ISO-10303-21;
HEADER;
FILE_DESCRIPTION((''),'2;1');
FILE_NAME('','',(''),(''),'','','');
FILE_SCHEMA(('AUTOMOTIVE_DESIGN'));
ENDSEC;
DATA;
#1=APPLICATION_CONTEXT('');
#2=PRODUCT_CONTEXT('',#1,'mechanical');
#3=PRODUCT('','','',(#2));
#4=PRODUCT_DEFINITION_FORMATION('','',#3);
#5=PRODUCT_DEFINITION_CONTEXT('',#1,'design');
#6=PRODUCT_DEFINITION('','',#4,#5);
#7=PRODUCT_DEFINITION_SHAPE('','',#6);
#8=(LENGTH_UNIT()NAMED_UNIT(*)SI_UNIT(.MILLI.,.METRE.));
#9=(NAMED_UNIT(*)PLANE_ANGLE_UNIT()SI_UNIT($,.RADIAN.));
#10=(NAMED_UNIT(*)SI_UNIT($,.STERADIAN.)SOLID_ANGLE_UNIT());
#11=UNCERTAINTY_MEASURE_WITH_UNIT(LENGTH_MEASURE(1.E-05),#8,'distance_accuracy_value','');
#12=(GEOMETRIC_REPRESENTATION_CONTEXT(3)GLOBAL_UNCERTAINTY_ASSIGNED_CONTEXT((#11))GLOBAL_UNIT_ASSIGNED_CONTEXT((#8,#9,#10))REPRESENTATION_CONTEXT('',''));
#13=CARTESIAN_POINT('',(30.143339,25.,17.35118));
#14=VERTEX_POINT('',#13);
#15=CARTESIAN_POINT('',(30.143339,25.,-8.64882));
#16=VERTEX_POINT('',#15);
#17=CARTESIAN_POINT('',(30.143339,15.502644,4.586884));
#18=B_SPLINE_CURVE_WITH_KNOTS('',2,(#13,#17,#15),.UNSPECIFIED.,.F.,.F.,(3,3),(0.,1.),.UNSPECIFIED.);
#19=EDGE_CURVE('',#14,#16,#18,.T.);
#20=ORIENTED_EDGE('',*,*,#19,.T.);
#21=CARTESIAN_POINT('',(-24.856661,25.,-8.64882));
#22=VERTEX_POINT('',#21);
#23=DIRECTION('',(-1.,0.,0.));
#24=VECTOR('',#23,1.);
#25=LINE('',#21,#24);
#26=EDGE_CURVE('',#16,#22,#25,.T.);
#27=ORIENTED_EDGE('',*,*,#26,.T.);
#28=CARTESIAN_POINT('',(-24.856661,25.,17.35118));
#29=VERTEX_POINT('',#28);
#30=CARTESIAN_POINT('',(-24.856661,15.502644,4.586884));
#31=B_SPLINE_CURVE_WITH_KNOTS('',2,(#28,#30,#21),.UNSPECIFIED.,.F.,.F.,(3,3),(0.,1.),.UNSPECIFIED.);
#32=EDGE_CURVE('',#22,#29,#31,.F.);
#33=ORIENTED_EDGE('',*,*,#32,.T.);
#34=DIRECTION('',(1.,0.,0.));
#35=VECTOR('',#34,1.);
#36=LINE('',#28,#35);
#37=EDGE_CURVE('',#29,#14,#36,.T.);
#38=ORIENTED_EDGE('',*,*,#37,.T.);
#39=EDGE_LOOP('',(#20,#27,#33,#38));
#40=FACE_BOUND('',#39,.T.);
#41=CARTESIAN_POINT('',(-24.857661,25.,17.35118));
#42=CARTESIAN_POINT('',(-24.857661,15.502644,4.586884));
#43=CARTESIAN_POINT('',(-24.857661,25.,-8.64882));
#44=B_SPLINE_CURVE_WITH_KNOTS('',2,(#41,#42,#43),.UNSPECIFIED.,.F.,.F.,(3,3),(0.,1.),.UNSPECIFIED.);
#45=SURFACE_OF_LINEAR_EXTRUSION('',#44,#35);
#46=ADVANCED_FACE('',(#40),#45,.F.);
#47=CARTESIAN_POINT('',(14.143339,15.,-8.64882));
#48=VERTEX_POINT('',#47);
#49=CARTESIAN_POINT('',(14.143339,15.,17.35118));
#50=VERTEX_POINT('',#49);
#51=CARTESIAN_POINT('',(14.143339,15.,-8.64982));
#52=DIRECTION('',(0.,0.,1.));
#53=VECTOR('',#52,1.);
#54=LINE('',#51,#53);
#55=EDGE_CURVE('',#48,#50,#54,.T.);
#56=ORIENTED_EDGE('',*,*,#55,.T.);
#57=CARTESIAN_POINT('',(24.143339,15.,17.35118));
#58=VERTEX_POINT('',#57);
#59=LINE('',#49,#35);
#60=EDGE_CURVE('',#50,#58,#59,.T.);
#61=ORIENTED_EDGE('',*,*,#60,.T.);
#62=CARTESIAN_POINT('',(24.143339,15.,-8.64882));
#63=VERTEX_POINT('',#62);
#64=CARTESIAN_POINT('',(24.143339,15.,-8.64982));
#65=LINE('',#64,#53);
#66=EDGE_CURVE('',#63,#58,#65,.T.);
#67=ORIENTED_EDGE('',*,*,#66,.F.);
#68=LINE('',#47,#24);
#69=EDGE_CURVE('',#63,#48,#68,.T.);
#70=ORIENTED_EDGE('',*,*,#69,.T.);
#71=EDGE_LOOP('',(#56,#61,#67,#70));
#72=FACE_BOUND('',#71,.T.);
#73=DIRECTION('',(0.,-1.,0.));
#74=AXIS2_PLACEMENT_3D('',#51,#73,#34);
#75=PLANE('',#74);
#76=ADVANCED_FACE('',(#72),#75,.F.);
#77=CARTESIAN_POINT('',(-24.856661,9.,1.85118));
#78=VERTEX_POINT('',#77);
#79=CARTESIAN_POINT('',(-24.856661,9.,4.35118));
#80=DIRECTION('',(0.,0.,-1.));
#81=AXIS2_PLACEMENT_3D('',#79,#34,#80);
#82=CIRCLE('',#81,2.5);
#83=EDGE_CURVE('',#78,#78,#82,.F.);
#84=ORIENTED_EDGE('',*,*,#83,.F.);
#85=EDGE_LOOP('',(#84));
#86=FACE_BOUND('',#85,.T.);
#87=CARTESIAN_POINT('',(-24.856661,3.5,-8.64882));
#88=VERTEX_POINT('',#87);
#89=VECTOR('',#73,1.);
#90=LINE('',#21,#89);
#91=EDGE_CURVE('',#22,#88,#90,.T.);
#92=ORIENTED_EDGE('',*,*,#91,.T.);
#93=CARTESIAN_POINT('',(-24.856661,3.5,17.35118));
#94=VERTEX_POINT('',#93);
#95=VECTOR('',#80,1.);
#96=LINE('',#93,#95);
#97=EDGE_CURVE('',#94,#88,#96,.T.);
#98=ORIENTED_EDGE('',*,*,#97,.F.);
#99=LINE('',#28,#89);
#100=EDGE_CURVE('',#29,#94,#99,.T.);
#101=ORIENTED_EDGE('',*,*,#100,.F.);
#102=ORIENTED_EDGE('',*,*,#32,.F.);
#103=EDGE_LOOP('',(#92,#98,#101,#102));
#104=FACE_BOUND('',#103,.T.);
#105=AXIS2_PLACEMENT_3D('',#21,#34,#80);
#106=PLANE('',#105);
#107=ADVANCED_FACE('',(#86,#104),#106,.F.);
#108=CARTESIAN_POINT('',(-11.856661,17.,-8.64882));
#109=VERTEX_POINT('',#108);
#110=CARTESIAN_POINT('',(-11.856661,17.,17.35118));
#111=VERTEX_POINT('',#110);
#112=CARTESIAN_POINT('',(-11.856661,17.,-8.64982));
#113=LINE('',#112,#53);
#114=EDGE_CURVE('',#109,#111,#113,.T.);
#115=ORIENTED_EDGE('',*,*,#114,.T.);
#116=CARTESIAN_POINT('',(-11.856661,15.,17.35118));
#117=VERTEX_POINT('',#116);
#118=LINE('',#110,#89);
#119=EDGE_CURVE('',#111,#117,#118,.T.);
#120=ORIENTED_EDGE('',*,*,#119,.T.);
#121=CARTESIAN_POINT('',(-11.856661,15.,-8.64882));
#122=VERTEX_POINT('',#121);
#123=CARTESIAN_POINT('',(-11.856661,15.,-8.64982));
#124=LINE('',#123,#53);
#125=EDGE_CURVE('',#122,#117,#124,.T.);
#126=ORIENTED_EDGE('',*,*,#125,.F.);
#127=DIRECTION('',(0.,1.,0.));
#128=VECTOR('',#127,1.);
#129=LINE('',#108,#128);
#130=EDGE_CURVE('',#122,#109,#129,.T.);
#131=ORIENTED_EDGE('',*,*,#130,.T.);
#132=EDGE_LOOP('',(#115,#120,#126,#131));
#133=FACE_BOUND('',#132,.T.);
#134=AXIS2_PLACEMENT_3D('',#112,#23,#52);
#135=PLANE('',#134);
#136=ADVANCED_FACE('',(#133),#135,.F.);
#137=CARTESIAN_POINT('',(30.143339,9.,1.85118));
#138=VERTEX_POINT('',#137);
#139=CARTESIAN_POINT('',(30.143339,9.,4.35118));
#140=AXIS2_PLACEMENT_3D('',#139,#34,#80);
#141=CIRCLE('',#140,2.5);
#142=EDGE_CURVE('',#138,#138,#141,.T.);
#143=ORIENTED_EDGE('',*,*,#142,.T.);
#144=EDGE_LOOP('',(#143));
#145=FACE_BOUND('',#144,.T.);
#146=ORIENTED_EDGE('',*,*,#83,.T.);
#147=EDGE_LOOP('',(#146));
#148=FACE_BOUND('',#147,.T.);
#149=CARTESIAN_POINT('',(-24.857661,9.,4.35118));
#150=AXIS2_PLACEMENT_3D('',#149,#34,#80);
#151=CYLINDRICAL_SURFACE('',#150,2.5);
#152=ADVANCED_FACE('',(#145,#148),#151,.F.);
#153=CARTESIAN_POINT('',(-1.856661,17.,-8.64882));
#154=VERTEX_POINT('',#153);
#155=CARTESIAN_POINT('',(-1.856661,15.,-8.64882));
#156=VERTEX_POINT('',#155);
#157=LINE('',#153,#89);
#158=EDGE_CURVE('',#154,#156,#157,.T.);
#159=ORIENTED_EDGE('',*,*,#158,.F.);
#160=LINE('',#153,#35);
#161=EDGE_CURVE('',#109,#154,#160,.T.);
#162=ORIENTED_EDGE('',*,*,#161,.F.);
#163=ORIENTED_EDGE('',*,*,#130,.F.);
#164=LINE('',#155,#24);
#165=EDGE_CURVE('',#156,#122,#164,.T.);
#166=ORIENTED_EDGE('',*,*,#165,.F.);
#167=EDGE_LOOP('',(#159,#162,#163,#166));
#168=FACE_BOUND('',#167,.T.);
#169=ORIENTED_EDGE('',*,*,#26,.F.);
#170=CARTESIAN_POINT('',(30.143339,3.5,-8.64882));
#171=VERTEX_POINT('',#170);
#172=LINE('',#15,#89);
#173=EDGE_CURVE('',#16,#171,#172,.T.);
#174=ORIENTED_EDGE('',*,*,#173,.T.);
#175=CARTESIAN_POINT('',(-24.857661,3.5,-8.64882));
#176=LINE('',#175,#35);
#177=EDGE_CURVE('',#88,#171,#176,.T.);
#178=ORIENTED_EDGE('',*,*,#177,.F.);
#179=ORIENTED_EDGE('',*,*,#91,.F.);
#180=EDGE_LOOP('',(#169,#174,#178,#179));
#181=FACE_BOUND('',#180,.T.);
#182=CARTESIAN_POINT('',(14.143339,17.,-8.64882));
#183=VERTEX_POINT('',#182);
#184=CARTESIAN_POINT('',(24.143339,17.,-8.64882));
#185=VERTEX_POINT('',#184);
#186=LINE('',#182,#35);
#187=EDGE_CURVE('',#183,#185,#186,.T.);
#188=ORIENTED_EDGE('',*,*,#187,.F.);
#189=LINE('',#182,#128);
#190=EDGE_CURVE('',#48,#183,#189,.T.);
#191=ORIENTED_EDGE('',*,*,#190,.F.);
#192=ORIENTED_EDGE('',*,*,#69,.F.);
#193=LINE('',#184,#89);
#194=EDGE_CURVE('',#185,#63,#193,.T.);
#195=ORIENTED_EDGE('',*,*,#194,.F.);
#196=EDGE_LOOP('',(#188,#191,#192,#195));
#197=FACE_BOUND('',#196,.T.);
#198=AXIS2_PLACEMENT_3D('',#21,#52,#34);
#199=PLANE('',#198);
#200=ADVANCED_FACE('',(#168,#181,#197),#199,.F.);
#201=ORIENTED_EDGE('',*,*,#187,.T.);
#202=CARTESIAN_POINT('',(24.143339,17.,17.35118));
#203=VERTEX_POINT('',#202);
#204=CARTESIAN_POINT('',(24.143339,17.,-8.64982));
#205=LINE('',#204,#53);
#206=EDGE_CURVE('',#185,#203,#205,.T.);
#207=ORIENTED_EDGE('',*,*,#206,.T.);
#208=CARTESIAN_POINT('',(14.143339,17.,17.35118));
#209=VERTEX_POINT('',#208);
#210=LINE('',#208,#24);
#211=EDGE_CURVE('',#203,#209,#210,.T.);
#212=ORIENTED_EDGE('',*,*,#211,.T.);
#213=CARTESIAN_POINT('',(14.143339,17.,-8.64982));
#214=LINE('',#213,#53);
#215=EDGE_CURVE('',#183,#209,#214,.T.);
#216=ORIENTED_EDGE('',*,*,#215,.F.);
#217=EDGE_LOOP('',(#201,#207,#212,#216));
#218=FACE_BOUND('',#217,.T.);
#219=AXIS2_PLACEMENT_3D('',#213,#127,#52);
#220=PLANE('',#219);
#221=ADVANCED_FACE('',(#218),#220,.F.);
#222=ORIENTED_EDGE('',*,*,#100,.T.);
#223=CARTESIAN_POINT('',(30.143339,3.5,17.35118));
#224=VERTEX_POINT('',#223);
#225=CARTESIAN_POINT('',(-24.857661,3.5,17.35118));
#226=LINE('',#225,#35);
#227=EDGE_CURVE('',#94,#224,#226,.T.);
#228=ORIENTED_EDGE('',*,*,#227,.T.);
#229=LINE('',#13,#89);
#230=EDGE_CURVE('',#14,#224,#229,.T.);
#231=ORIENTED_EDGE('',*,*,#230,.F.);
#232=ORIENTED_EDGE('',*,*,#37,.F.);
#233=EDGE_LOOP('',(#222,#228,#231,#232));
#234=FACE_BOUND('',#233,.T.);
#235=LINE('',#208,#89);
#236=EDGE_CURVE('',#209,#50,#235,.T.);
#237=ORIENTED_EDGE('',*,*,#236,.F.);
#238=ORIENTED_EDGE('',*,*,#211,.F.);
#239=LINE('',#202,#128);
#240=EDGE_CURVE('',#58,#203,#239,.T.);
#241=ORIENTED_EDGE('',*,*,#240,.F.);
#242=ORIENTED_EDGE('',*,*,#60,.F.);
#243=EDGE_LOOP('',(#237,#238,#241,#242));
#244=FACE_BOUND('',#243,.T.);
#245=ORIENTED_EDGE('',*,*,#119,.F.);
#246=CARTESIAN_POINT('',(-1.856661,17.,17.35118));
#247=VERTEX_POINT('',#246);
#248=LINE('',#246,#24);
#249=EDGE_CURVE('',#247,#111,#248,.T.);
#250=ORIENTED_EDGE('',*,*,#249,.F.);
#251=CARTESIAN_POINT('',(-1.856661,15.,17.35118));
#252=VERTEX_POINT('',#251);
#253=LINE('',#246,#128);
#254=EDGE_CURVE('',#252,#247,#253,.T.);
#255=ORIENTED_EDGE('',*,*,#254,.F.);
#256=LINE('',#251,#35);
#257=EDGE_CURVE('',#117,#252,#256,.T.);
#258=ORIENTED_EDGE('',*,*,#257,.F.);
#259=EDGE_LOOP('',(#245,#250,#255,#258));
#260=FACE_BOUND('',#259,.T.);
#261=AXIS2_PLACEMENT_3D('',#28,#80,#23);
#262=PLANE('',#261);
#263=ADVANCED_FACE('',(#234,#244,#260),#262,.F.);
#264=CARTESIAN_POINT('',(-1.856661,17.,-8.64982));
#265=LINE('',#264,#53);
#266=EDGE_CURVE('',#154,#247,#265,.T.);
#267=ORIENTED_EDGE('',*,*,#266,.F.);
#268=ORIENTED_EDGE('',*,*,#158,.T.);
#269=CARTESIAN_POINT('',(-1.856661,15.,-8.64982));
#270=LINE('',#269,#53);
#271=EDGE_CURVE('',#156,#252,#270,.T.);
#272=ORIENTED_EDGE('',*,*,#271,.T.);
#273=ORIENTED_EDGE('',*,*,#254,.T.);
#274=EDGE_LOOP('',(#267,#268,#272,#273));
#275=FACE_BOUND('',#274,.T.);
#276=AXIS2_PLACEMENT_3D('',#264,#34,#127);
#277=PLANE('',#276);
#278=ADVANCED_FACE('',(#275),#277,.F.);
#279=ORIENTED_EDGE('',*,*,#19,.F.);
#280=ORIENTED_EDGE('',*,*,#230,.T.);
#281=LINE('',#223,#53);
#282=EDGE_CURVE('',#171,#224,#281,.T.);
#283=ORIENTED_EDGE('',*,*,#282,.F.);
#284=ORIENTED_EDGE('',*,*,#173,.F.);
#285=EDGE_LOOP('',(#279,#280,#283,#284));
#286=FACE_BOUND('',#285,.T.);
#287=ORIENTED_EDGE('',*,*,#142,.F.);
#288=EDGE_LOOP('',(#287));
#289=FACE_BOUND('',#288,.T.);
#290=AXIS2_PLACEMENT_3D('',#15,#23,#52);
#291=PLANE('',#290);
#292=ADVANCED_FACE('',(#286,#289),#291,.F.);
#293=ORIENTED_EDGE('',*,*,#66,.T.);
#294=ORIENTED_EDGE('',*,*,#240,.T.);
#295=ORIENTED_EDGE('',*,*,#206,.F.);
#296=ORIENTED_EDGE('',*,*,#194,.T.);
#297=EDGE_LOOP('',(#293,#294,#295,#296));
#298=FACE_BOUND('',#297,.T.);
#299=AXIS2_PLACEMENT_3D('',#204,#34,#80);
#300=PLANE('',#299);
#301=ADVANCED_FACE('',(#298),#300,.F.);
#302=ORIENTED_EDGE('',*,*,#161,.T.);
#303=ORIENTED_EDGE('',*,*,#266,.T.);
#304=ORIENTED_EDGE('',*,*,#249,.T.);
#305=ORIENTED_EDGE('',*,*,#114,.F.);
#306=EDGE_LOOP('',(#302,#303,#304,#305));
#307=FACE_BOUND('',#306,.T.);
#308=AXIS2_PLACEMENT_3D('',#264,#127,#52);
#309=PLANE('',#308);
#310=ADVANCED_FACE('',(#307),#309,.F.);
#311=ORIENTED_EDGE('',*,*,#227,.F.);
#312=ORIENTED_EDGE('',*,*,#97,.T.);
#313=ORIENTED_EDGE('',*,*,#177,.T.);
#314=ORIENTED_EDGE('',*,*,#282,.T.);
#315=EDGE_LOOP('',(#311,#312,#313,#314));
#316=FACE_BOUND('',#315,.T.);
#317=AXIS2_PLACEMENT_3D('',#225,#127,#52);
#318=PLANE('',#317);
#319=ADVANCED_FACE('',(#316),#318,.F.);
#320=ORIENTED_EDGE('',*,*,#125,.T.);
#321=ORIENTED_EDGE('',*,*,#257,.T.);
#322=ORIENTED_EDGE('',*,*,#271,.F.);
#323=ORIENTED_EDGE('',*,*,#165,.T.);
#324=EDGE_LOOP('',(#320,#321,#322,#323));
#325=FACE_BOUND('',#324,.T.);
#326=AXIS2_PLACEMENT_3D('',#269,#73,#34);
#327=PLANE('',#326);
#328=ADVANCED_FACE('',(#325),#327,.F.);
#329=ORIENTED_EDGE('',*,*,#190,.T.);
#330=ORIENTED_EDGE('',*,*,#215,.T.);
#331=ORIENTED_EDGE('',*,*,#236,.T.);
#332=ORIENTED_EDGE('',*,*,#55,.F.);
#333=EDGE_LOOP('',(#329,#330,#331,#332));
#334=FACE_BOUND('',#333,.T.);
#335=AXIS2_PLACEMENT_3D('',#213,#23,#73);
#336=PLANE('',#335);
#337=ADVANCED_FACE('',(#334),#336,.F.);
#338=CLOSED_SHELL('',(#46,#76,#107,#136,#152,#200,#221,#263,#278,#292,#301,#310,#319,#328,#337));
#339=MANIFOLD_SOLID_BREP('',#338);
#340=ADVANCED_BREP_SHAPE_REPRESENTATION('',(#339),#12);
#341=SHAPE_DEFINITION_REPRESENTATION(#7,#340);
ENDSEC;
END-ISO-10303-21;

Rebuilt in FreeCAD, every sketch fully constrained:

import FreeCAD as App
import Part
import Sketcher

doc = App.newDocument("Part")
body = doc.addObject("PartDesign::Body", "Body")

sketch1 = body.newObject("Sketcher::SketchObject", "Sketch")
sketch1.AttachmentSupport = (doc.getObject("XZ_Plane"), [""])
sketch1.MapMode = "FlatFace"
sketch1.addGeometry([
    Part.LineSegment(App.Vector(-24.856661, -8.64882, 0), App.Vector(-24.856661, 17.35118, 0)),
    Part.LineSegment(App.Vector(-24.856661, 17.35118, 0), App.Vector(30.143339, 17.35118, 0)),
    Part.LineSegment(App.Vector(30.143339, 17.35118, 0), App.Vector(30.143339, -8.64882, 0)),
    Part.LineSegment(App.Vector(30.143339, -8.64882, 0), App.Vector(-24.856661, -8.64882, 0)),
], False)
sketch1.addConstraint([
    Sketcher.Constraint("Coincident", 0, 2, 1, 1),
    Sketcher.Constraint("Coincident", 1, 2, 2, 1),
    Sketcher.Constraint("Coincident", 2, 2, 3, 1),
    Sketcher.Constraint("Coincident", 3, 2, 0, 1),
    Sketcher.Constraint("Vertical", 0),
    Sketcher.Constraint("Horizontal", 1),
    Sketcher.Constraint("Vertical", 2),
    Sketcher.Constraint("Horizontal", 3),
    Sketcher.Constraint("DistanceX", 1, 1, 1, 2, 55.0),
    Sketcher.Constraint("DistanceY", 0, 1, 0, 2, 26.0),
    Sketcher.Constraint("DistanceX", 0, 2, -1, 1, 24.856661),
    Sketcher.Constraint("DistanceY", -1, 1, 0, 2, 17.35118),
])
pad1 = body.newObject("PartDesign::Pad", "Pad")
pad1.Profile = sketch1
pad1.Length = 25
pad1.Reversed = True

sketch2 = body.newObject("Sketcher::SketchObject", "Sketch001")
sketch2.AttachmentSupport = (doc.getObject("XY_Plane"), [""])
sketch2.MapMode = "FlatFace"
sketch2.AttachmentOffset = App.Placement(App.Vector(0, 0, 17.35118), App.Rotation())
sketch2.addGeometry([
    Part.LineSegment(App.Vector(14.143339, 17, 0), App.Vector(14.143339, 15, 0)),
    Part.LineSegment(App.Vector(14.143339, 15, 0), App.Vector(24.143339, 15, 0)),
    Part.LineSegment(App.Vector(24.143339, 15, 0), App.Vector(24.143339, 17, 0)),
    Part.LineSegment(App.Vector(24.143339, 17, 0), App.Vector(14.143339, 17, 0)),
], False)
sketch2.addConstraint([
    Sketcher.Constraint("Coincident", 0, 2, 1, 1),
    Sketcher.Constraint("Coincident", 1, 2, 2, 1),
    Sketcher.Constraint("Coincident", 2, 2, 3, 1),
    Sketcher.Constraint("Coincident", 3, 2, 0, 1),
    Sketcher.Constraint("Vertical", 0),
    Sketcher.Constraint("Horizontal", 1),
    Sketcher.Constraint("Vertical", 2),
    Sketcher.Constraint("Horizontal", 3),
    Sketcher.Constraint("DistanceX", 1, 1, 1, 2, 10.0),
    Sketcher.Constraint("DistanceY", 0, 2, 0, 1, 2.0),
    Sketcher.Constraint("DistanceY", -1, 1, 0, 2, 15.0),
    Sketcher.Constraint("DistanceX", -1, 1, 0, 2, 14.143339),
])
pocket1 = body.newObject("PartDesign::Pocket", "Pocket")
pocket1.Profile = sketch2
pocket1.Type = "UpToFirst"

sketch3 = body.newObject("Sketcher::SketchObject", "Sketch002")
sketch3.AttachmentSupport = (doc.getObject("XY_Plane"), [""])
sketch3.MapMode = "FlatFace"
sketch3.AttachmentOffset = App.Placement(App.Vector(0, 0, 17.35118), App.Rotation())
sketch3.addGeometry([
    Part.LineSegment(App.Vector(-11.856661, 17, 0), App.Vector(-11.856661, 15, 0)),
    Part.LineSegment(App.Vector(-11.856661, 15, 0), App.Vector(-1.856661, 15, 0)),
    Part.LineSegment(App.Vector(-1.856661, 15, 0), App.Vector(-1.856661, 17, 0)),
    Part.LineSegment(App.Vector(-1.856661, 17, 0), App.Vector(-11.856661, 17, 0)),
], False)
sketch3.addConstraint([
    Sketcher.Constraint("Coincident", 0, 2, 1, 1),
    Sketcher.Constraint("Coincident", 1, 2, 2, 1),
    Sketcher.Constraint("Coincident", 2, 2, 3, 1),
    Sketcher.Constraint("Coincident", 3, 2, 0, 1),
    Sketcher.Constraint("Vertical", 0),
    Sketcher.Constraint("Horizontal", 1),
    Sketcher.Constraint("Vertical", 2),
    Sketcher.Constraint("Horizontal", 3),
    Sketcher.Constraint("DistanceX", 1, 1, 1, 2, 10.0),
    Sketcher.Constraint("DistanceY", 0, 2, 0, 1, 2.0),
    Sketcher.Constraint("DistanceY", -1, 1, 0, 2, 15.0),
    Sketcher.Constraint("DistanceX", 0, 2, -1, 1, 11.856661),
])
pocket2 = body.newObject("PartDesign::Pocket", "Pocket001")
pocket2.Profile = sketch3
pocket2.Type = "UpToFirst"

sketch4 = body.newObject("Sketcher::SketchObject", "Sketch003")
sketch4.AttachmentSupport = (doc.getObject("YZ_Plane"), [""])
sketch4.MapMode = "FlatFace"
sketch4.AttachmentOffset = App.Placement(App.Vector(0, 0, 30.143339), App.Rotation())
sketch4.addGeometry(Part.Circle(App.Vector(9, 4.35118, 0), App.Vector(0, 0, 1), 2.5), False)
sketch4.addConstraint([
    Sketcher.Constraint("Diameter", 0, 5.0),
    Sketcher.Constraint("DistanceX", -1, 1, 0, 3, 9.0),
    Sketcher.Constraint("DistanceY", -1, 1, 0, 3, 4.35118),
])
pocket3 = body.newObject("PartDesign::Pocket", "Pocket002")
pocket3.Profile = sketch4
pocket3.Type = "UpToFirst"

sketch5 = body.newObject("Sketcher::SketchObject", "Sketch004")
sketch5.AttachmentSupport = (doc.getObject("YZ_Plane"), [""])
sketch5.MapMode = "FlatFace"
sketch5.AttachmentOffset = App.Placement(App.Vector(0, 0, 30.143339), App.Rotation())
sketch5.addGeometry([
    Part.LineSegment(App.Vector(25, -8.64882, 0), App.Vector(25, 17.35118, 0)),
    Part.BSplineCurve([App.Vector(25, 17.35118, 0), App.Vector(15.502644, 4.586884, 0), App.Vector(25, -8.64882, 0)], [3, 3], [0, 1], False, 2, [1, 1, 1], False),
], False)
sketch5.addConstraint([
    Sketcher.Constraint("Block", 1),
    Sketcher.Constraint("Coincident", 0, 1, 1, 2),
    Sketcher.Constraint("Coincident", 1, 1, 0, 2),
])
pocket4 = body.newObject("PartDesign::Pocket", "Pocket003")
pocket4.Profile = sketch5
pocket4.Type = "UpToFirst"

sketch6 = body.newObject("Sketcher::SketchObject", "Sketch005")
sketch6.AttachmentSupport = (doc.getObject("YZ_Plane"), [""])
sketch6.MapMode = "FlatFace"
sketch6.AttachmentOffset = App.Placement(App.Vector(0, 0, 30.143339), App.Rotation())
sketch6.addGeometry([
    Part.LineSegment(App.Vector(3.5, 17.35118, 0), App.Vector(0, 17.35118, 0)),
    Part.LineSegment(App.Vector(0, 17.35118, 0), App.Vector(0, -8.64882, 0)),
    Part.LineSegment(App.Vector(0, -8.64882, 0), App.Vector(3.5, -8.64882, 0)),
    Part.LineSegment(App.Vector(3.5, -8.64882, 0), App.Vector(3.5, 17.35118, 0)),
], False)
sketch6.addConstraint([
    Sketcher.Constraint("Coincident", 0, 2, 1, 1),
    Sketcher.Constraint("Coincident", 1, 2, 2, 1),
    Sketcher.Constraint("Coincident", 2, 2, 3, 1),
    Sketcher.Constraint("Coincident", 3, 2, 0, 1),
    Sketcher.Constraint("Horizontal", 0),
    Sketcher.Constraint("Vertical", 1),
    Sketcher.Constraint("Horizontal", 2),
    Sketcher.Constraint("Vertical", 3),
    Sketcher.Constraint("PointOnObject", 0, 2, -2),
    Sketcher.Constraint("DistanceY", 1, 2, 1, 1, 26.0),
    Sketcher.Constraint("DistanceX", 0, 2, 0, 1, 3.5),
    Sketcher.Constraint("DistanceY", -1, 1, 0, 2, 17.35118),
])
pocket5 = body.newObject("PartDesign::Pocket", "Pocket004")
pocket5.Profile = sketch6
pocket5.Type = "UpToFirst"

doc.recompute()
